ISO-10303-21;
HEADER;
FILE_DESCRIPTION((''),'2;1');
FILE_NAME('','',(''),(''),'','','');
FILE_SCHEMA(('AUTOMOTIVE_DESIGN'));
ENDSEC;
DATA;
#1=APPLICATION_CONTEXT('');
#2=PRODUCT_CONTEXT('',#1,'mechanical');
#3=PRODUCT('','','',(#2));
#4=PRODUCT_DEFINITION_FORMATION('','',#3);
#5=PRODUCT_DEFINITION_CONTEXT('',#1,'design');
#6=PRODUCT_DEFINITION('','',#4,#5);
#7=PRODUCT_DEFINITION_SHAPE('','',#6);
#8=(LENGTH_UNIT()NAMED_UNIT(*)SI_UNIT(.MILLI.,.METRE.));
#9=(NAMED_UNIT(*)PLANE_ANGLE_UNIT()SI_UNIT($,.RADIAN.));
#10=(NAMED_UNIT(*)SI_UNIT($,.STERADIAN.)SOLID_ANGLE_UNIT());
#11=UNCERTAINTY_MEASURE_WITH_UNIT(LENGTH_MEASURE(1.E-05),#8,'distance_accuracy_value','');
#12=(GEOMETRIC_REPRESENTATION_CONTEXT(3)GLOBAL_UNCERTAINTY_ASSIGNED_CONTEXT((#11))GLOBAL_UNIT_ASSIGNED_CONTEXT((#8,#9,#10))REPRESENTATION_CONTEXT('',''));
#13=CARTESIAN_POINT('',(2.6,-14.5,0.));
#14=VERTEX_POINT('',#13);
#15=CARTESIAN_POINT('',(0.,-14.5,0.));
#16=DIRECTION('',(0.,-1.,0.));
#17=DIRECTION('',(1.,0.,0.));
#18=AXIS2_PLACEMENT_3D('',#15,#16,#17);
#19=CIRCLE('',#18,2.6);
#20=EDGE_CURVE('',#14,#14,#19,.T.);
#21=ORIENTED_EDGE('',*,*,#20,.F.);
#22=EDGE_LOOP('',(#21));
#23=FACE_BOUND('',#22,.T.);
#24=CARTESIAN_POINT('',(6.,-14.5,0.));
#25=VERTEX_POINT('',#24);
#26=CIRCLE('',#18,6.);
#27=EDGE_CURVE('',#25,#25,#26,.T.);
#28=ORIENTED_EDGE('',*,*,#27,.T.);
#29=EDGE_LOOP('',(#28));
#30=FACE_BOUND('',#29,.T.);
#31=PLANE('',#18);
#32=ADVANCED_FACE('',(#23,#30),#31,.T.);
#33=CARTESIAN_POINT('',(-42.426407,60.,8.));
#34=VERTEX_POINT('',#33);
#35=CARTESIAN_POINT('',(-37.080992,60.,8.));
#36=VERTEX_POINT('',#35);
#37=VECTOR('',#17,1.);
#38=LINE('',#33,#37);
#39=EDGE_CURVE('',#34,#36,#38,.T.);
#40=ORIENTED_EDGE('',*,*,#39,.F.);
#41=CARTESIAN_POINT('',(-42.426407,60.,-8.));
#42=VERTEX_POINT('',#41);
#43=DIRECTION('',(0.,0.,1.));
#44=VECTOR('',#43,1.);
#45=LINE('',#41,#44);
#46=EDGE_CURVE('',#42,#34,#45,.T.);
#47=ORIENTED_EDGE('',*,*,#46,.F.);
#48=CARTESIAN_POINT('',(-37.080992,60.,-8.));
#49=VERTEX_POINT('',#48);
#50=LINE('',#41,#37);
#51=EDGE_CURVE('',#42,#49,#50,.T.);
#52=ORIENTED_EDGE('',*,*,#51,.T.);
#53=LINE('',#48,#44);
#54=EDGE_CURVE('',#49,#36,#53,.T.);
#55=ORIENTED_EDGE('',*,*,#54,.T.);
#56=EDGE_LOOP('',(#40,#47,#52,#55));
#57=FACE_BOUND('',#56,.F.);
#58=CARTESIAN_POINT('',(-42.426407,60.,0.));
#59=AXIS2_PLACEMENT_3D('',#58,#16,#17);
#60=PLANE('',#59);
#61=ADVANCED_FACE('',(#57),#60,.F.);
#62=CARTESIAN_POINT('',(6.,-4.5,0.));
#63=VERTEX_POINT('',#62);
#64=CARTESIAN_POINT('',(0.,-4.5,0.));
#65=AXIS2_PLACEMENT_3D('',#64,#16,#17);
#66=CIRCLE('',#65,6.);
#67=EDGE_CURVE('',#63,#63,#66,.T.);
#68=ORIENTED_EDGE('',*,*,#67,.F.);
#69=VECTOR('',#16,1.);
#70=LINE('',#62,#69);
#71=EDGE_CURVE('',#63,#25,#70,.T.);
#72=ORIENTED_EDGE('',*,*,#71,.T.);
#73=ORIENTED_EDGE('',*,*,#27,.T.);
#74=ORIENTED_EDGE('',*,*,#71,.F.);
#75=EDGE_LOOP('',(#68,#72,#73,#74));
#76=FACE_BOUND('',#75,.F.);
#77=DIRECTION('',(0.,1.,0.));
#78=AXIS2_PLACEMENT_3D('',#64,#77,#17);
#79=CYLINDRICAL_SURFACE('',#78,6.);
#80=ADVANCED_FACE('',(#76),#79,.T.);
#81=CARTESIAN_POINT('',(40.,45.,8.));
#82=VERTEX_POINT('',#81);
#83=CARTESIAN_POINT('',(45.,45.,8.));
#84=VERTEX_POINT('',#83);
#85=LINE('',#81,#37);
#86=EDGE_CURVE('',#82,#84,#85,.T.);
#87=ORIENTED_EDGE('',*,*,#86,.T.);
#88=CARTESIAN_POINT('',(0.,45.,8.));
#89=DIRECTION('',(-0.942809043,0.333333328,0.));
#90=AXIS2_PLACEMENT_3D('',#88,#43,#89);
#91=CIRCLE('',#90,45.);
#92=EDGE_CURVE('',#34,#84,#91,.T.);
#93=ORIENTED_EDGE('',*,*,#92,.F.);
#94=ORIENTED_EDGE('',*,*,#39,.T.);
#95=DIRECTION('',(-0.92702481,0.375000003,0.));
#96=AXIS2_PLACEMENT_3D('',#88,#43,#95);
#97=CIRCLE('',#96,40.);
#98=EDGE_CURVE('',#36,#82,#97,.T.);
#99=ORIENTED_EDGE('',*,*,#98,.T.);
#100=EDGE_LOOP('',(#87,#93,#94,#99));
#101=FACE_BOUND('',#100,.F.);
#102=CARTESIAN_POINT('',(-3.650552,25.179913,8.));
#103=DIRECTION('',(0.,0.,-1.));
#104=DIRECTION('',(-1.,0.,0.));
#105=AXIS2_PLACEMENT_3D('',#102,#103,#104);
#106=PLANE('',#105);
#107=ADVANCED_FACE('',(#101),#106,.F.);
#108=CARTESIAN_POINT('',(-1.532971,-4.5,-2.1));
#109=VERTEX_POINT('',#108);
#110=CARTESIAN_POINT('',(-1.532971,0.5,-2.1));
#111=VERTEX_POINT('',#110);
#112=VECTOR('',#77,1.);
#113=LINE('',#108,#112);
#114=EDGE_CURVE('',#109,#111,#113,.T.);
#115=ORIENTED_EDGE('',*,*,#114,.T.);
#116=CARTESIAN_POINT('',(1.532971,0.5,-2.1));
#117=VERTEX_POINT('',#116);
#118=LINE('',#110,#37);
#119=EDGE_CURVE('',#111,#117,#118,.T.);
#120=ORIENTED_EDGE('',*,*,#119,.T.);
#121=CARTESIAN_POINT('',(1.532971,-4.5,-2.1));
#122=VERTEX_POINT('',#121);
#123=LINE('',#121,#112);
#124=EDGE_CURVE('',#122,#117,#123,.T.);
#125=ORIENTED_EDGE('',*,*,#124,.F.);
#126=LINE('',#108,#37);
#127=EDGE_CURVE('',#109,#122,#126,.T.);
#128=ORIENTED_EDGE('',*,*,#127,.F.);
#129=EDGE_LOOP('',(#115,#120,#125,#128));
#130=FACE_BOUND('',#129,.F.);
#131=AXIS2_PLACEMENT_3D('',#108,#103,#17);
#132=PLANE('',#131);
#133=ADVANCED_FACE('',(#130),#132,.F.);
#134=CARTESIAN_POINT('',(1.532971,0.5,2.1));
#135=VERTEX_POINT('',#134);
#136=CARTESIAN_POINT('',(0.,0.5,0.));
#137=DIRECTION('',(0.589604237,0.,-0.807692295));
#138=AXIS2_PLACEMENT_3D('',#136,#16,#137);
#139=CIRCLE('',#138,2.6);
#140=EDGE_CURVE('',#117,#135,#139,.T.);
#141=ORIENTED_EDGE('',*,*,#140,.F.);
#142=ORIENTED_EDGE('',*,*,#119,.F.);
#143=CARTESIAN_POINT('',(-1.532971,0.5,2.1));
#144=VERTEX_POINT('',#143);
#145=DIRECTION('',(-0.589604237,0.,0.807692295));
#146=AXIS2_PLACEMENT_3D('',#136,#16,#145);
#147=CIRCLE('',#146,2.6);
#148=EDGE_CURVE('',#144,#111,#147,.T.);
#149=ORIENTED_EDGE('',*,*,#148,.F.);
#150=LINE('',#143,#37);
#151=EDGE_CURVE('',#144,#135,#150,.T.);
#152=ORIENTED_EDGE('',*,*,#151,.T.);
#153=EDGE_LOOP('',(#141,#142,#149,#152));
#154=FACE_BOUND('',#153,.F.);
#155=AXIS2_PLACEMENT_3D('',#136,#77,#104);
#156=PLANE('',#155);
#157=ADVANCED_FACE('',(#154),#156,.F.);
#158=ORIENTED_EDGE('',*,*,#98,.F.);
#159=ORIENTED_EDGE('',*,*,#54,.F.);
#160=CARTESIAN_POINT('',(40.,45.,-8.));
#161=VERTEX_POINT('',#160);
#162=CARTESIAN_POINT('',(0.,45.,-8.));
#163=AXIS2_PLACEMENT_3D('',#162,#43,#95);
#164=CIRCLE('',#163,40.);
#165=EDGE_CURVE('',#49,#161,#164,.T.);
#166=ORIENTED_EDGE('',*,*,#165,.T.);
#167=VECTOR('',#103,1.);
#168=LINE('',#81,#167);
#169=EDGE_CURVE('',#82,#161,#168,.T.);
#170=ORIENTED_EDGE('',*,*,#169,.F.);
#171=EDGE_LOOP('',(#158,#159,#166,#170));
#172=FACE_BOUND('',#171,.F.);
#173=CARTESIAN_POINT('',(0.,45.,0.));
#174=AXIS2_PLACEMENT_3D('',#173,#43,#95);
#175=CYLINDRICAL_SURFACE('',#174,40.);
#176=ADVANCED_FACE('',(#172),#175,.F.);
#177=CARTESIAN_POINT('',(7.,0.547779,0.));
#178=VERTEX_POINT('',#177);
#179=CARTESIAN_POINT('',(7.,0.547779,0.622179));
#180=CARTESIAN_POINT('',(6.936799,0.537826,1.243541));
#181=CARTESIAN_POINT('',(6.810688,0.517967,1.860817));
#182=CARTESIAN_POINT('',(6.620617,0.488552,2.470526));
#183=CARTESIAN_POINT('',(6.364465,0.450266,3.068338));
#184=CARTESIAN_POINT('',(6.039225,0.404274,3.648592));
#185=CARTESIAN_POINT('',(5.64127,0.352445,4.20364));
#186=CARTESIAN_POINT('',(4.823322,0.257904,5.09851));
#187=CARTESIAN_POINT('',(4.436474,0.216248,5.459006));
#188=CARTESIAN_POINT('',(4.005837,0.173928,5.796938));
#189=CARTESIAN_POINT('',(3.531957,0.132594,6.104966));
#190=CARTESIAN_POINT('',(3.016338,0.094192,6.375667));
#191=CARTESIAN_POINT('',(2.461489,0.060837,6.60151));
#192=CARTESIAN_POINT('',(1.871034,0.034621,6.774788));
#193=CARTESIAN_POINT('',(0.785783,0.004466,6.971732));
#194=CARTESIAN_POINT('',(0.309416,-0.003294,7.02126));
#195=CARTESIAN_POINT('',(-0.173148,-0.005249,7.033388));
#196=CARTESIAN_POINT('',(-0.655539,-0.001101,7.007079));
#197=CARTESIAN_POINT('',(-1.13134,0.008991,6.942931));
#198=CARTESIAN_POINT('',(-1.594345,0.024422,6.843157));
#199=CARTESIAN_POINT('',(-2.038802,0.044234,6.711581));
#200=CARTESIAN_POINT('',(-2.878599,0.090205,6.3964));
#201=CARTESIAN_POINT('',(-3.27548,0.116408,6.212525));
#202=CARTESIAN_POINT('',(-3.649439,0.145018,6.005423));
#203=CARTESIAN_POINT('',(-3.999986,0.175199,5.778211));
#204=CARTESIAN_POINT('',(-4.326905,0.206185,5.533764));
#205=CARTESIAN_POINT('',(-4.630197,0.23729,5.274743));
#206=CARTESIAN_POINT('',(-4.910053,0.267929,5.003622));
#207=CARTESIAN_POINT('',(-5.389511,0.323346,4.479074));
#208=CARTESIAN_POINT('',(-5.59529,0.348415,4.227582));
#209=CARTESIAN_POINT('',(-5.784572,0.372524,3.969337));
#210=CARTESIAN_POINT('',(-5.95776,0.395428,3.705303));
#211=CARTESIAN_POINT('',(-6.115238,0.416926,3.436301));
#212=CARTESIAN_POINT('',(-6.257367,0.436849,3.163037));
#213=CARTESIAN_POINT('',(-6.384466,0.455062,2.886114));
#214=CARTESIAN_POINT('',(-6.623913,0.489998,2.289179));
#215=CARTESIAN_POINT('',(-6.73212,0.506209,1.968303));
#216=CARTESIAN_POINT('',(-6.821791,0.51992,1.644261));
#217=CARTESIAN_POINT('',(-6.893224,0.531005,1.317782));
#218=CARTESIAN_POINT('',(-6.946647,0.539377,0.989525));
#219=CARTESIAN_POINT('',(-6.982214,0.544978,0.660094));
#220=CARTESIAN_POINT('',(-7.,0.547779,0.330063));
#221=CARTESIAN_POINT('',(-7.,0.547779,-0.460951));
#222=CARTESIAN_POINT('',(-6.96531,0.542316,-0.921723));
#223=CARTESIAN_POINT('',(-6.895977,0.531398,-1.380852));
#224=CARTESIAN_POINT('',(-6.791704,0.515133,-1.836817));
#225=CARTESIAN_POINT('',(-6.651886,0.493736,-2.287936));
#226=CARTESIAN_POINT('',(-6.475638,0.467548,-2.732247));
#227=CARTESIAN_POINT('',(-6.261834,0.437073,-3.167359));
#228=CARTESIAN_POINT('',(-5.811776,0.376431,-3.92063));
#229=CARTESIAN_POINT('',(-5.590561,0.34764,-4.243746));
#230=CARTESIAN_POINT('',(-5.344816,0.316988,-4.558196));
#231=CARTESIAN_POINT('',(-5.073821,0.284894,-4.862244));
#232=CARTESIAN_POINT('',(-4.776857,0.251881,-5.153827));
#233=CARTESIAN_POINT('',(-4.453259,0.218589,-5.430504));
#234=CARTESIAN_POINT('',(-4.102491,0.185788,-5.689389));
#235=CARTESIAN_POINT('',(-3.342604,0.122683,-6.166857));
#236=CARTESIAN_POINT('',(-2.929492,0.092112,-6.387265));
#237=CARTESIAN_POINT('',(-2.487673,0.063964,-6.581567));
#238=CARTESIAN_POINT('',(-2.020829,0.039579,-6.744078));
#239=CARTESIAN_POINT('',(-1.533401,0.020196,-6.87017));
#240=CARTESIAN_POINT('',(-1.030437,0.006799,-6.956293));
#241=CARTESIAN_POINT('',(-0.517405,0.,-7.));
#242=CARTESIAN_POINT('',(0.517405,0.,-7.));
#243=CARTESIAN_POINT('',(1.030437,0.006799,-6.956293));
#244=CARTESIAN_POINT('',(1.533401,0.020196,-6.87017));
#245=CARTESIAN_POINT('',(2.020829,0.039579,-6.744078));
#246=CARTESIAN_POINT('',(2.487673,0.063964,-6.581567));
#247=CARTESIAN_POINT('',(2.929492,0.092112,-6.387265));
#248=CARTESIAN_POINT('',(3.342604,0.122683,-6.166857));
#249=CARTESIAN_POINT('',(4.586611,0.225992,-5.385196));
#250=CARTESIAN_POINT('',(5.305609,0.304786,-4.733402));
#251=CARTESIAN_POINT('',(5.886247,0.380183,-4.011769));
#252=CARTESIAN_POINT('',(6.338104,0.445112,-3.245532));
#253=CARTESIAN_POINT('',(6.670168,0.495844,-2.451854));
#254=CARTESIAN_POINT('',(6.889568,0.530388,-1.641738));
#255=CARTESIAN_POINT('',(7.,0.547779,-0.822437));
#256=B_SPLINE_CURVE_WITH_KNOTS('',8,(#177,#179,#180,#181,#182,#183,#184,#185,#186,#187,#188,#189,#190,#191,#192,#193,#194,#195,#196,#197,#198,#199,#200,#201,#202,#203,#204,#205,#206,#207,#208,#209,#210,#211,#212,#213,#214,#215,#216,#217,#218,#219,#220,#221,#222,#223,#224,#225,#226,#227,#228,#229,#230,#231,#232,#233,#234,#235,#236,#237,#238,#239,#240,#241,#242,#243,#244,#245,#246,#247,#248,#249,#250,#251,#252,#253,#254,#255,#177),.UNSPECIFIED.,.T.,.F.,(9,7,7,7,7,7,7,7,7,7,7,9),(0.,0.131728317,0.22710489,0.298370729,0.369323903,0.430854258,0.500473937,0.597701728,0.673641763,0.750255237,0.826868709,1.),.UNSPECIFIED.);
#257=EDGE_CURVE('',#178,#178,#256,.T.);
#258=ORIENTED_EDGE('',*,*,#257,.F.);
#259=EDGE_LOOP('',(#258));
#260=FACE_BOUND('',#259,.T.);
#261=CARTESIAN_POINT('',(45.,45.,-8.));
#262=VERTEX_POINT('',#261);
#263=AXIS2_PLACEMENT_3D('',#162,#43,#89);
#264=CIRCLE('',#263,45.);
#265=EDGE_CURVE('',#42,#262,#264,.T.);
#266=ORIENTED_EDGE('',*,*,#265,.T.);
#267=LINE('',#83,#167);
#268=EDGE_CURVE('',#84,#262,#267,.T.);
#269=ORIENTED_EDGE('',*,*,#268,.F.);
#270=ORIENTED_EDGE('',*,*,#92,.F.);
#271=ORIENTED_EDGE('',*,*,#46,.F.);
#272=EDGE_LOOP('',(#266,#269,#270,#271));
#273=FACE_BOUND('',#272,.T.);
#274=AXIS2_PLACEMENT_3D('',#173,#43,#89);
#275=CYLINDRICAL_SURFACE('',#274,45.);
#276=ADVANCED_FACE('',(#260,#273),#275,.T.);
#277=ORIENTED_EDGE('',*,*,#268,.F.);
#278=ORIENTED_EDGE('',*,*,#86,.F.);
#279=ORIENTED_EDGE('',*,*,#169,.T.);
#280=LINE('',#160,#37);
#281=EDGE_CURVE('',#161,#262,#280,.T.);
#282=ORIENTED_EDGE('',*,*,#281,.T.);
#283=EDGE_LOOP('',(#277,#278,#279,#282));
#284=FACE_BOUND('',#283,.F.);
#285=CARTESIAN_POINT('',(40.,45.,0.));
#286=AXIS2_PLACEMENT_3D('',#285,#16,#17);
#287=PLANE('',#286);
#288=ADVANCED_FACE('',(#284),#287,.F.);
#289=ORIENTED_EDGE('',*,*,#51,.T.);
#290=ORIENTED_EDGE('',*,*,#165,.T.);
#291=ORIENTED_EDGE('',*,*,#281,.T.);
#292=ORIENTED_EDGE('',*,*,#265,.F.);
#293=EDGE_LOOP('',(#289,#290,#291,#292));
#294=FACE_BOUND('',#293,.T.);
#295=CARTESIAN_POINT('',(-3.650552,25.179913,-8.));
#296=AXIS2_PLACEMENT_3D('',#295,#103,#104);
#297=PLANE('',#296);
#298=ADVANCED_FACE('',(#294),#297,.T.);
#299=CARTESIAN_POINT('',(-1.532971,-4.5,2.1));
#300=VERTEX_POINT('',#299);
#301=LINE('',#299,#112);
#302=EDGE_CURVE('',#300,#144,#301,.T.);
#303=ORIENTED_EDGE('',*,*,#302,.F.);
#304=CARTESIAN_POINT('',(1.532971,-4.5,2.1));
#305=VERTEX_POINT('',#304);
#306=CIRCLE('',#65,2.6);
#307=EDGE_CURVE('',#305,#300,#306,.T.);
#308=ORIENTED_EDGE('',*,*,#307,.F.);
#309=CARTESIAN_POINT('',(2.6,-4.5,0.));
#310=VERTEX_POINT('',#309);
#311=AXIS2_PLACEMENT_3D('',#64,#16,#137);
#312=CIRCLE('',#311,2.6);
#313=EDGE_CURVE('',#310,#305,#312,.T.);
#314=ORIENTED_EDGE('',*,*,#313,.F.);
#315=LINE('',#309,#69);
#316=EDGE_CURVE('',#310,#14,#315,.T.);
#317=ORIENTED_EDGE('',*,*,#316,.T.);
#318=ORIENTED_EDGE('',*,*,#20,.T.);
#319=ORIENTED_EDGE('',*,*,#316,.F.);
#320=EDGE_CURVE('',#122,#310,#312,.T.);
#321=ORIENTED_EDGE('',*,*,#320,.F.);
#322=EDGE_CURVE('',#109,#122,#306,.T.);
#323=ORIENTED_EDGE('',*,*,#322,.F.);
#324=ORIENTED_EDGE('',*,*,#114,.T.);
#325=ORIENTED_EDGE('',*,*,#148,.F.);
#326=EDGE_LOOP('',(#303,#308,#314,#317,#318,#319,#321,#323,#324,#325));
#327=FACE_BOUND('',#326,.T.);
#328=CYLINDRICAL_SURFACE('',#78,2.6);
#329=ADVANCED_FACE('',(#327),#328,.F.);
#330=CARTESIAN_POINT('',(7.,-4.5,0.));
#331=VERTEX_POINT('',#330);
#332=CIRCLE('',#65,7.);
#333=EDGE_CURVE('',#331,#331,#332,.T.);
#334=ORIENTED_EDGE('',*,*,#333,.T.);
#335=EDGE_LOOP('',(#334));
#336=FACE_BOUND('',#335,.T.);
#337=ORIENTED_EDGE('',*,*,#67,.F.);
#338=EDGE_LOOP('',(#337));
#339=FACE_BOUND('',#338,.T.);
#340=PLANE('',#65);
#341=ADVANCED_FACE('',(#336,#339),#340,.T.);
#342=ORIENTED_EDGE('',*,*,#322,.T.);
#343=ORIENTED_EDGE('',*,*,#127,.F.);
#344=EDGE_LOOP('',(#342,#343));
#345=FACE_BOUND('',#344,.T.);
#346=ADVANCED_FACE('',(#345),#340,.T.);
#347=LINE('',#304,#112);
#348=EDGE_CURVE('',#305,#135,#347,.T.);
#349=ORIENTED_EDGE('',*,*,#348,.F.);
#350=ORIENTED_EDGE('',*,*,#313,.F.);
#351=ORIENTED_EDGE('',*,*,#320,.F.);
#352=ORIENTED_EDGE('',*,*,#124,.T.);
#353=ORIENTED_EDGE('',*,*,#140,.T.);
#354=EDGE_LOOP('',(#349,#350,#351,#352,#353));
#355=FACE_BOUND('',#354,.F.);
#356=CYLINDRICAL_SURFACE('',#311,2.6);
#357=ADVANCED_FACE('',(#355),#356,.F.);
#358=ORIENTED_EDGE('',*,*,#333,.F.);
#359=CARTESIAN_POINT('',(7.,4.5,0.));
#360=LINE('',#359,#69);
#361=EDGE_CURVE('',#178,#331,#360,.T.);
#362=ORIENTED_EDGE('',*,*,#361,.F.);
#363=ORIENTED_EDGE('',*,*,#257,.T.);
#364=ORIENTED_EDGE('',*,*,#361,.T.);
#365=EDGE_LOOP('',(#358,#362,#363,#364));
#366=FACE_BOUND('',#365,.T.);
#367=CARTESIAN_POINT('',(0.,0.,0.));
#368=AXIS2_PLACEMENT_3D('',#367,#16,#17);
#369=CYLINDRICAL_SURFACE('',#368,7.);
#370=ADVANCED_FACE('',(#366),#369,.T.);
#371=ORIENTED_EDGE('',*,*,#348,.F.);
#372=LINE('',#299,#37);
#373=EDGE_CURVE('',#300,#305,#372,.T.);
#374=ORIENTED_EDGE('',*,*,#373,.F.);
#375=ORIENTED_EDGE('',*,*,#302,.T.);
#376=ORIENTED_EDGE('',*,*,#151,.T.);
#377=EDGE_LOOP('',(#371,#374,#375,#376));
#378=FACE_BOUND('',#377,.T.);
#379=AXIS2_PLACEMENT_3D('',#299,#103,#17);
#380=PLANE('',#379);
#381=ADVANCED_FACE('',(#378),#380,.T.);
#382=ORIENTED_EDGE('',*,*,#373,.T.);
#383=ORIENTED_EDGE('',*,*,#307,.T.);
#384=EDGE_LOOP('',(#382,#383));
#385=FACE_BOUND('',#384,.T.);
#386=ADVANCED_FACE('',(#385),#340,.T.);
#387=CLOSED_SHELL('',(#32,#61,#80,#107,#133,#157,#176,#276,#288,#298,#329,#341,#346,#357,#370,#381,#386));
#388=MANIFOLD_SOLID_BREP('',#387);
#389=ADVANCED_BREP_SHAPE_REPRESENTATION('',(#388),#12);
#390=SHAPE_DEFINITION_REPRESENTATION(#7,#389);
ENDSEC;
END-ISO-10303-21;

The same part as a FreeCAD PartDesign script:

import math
import FreeCAD as App
import Part
import Sketcher
Q = App.Units.Quantity

doc = App.newDocument("Part")
body = doc.addObject("PartDesign::Body", "Body")

# Sketch on XY plane
sketch1 = body.newObject("Sketcher::SketchObject", "Sketch")
sketch1.AttachmentSupport = (doc.getObject("XY_Plane"), [""])
sketch1.MapMode = "FlatFace"
sketch1.addGeometry([
    Part.ArcOfCircle(Part.Circle(App.Vector(0, 45, 0), App.Vector(0, 0, 1), 40), math.radians(158), math.radians(360)),
    Part.LineSegment(App.Vector(-37, 60, 0), App.Vector(-42, 60, 0)),
    Part.ArcOfCircle(Part.Circle(App.Vector(0, 45, 0), App.Vector(0, 0, 1), 45), math.radians(161), math.radians(360)),
    Part.LineSegment(App.Vector(45, 45, 0), App.Vector(40, 45, 0)),
], False)
sketch1.addConstraint([
    Sketcher.Constraint("Coincident", 0, 1, 1, 1),
    Sketcher.Constraint("Coincident", 1, 2, 2, 1),
    Sketcher.Constraint("Coincident", 2, 2, 3, 1),
    Sketcher.Constraint("Coincident", 3, 2, 0, 2),
    Sketcher.Constraint("Horizontal", 1),
    Sketcher.Constraint("Horizontal", 3),
    Sketcher.Constraint("Coincident", 2, 3, 0, 3),
    Sketcher.Constraint("PointOnObject", 0, 3, -2),
    Sketcher.Constraint("Horizontal", 0, 3, 2, 2),
    Sketcher.Constraint("Radius", 0, Q("40 mm")),
    Sketcher.Constraint("Radius", 2, Q("45 mm")),
    Sketcher.Constraint("DistanceY", -1, 1, 0, 3, Q("45 mm")),
    Sketcher.Constraint("DistanceY", -1, 1, 0, 1, Q("60 mm")),
])
pad1 = body.newObject("PartDesign::Pad", "Pad")
pad1.Profile = sketch1
pad1.Length = 16
pad1.Midplane = True

# Sketch on XZ plane
sketch2 = body.newObject("Sketcher::SketchObject", "Sketch001")
sketch2.AttachmentSupport = (doc.getObject("XZ_Plane"), [""])
sketch2.MapMode = "FlatFace"
sketch2.addGeometry(Part.Circle(App.Vector(0, 0, 0), App.Vector(0, 0, 1), 7), False)
sketch2.addConstraint([
    Sketcher.Constraint("Coincident", 0, 3, -1, 1),
    Sketcher.Constraint("Diameter", 0, Q("14 mm")),
])
pad2 = body.newObject("PartDesign::Pad", "Pad001")
pad2.Profile = sketch2
pad2.Length = 9
pad2.Midplane = True

# Sketch on XZ plane
sketch3 = body.newObject("Sketcher::SketchObject", "Sketch002")
sketch3.AttachmentSupport = (doc.getObject("XZ_Plane"), [""])
sketch3.MapMode = "FlatFace"
sketch3.AttachmentOffset = App.Placement(App.Vector(0, 0, 4.5), App.Rotation())
sketch3.addGeometry([
    Part.LineSegment(App.Vector(1.5, 2.1, 0), App.Vector(-1.5, 2.1, 0)),
    Part.ArcOfCircle(Part.Circle(App.Vector(0, 0, 0), App.Vector(0, 0, 1), 2.6), math.radians(126), math.radians(234)),
    Part.LineSegment(App.Vector(-1.5, -2.1, 0), App.Vector(1.5, -2.1, 0)),
    Part.ArcOfCircle(Part.Circle(App.Vector(0, 0, 0), App.Vector(0, 0, 1), 2.6), math.radians(-54), math.radians(54)),
], False)
sketch3.addConstraint([
    Sketcher.Constraint("Coincident", 0, 2, 1, 1),
    Sketcher.Constraint("Coincident", 1, 2, 2, 1),
    Sketcher.Constraint("Coincident", 2, 2, 3, 1),
    Sketcher.Constraint("Coincident", 3, 2, 0, 1),
    Sketcher.Constraint("Horizontal", 0),
    Sketcher.Constraint("Horizontal", 2),
    Sketcher.Constraint("Coincident", 1, 3, -1, 1),
    Sketcher.Constraint("Coincident", 3, 3, -1, 1),
    Sketcher.Constraint("Equal", 1, 3),
    Sketcher.Constraint("Vertical", 0, 2, 1, 2),
    Sketcher.Constraint("Radius", 1, Q("2.6 mm")),
    Sketcher.Constraint("DistanceY", -1, 1, 0, 2, Q("2.1 mm")),
])
pocket1 = body.newObject("PartDesign::Pocket", "Pocket")
pocket1.Profile = sketch3
pocket1.Length = 5

# Sketch on XZ plane
sketch4 = body.newObject("Sketcher::SketchObject", "Sketch003")
sketch4.AttachmentSupport = (doc.getObject("XZ_Plane"), [""])
sketch4.MapMode = "FlatFace"
sketch4.AttachmentOffset = App.Placement(App.Vector(0, 0, 4.5), App.Rotation())
sketch4.addGeometry([
    Part.Circle(App.Vector(0, 0, 0), App.Vector(0, 0, 1), 6),
    Part.Circle(App.Vector(0, 0, 0), App.Vector(0, 0, 1), 2.6),
], False)
sketch4.addConstraint([
    Sketcher.Constraint("Coincident", 0, 3, -1, 1),
    Sketcher.Constraint("Coincident", 1, 3, -1, 1),
    Sketcher.Constraint("Diameter", 0, Q("12 mm")),
    Sketcher.Constraint("Diameter", 1, Q("5.2 mm")),
])
pad3 = body.newObject("PartDesign::Pad", "Pad002")
pad3.Profile = sketch4
pad3.Length = 10

doc.recompute()
